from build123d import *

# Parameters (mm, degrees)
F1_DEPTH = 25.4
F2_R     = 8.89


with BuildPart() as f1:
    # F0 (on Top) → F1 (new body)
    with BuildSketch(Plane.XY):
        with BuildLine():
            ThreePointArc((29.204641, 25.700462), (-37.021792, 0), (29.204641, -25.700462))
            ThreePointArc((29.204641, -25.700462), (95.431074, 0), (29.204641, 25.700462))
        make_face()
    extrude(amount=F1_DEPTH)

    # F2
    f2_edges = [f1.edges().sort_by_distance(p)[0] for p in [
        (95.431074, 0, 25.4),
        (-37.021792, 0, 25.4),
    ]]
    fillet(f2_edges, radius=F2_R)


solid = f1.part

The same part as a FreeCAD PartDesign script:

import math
import FreeCAD as App
import Part
import Sketcher
from FreeCAD import Vector
Q = App.Units.Quantity


def edges_at(feature, points):
    """Names of the edges that pass closest to the given points."""
    edges = feature.Shape.Edges
    near = lambda p: min(range(len(edges)), key=lambda i: edges[i].distToShape(Part.Vertex(*p))[0])
    return sorted({f"Edge{near(p) + 1}" for p in points})

doc = App.newDocument("Part")
body = doc.addObject("PartDesign::Body", "Body")

sketch1 = body.newObject("Sketcher::SketchObject", "Sketch")
sketch1.AttachmentSupport = (doc.getObject("XY_Plane"), [""])
sketch1.MapMode = "FlatFace"
sketch1.addGeometry([
    Part.ArcOfCircle(Part.Circle(Vector(1, 0, 0), Vector(0, 0, 1), 38), math.radians(42), math.radians(318)),
    Part.ArcOfCircle(Part.Circle(Vector(57, 0, 0), Vector(0, 0, 1), 38), math.radians(-138), math.radians(138)),
], False)
sketch1.addConstraint([
    Sketcher.Constraint("Coincident", 0, 1, 1, 2),
    Sketcher.Constraint("Coincident", 1, 1, 0, 2),
    Sketcher.Constraint("Equal", 0, 1),
    Sketcher.Constraint("Symmetric", 0, 1, 1, 1, -1),
    Sketcher.Constraint("Radius", 0, Q("1.5 in")),
    Sketcher.Constraint("DistanceX", -1, 1, 0, 1, 29.204641),
    Sketcher.Constraint("DistanceY", -1, 1, 0, 1, 25.700462),
])
pad1 = body.newObject("PartDesign::Pad", "Pad")
pad1.Profile = sketch1
pad1.Length = Q("1 in")
doc.recompute()

fillet = body.newObject("PartDesign::Fillet", "Fillet")
fillet.Base = (pad1, edges_at(pad1, [(95.431, 0, 25.4), (-37.022, 0, 25.4)]))
fillet.Radius = Q("0.35 in")

doc.recompute()
